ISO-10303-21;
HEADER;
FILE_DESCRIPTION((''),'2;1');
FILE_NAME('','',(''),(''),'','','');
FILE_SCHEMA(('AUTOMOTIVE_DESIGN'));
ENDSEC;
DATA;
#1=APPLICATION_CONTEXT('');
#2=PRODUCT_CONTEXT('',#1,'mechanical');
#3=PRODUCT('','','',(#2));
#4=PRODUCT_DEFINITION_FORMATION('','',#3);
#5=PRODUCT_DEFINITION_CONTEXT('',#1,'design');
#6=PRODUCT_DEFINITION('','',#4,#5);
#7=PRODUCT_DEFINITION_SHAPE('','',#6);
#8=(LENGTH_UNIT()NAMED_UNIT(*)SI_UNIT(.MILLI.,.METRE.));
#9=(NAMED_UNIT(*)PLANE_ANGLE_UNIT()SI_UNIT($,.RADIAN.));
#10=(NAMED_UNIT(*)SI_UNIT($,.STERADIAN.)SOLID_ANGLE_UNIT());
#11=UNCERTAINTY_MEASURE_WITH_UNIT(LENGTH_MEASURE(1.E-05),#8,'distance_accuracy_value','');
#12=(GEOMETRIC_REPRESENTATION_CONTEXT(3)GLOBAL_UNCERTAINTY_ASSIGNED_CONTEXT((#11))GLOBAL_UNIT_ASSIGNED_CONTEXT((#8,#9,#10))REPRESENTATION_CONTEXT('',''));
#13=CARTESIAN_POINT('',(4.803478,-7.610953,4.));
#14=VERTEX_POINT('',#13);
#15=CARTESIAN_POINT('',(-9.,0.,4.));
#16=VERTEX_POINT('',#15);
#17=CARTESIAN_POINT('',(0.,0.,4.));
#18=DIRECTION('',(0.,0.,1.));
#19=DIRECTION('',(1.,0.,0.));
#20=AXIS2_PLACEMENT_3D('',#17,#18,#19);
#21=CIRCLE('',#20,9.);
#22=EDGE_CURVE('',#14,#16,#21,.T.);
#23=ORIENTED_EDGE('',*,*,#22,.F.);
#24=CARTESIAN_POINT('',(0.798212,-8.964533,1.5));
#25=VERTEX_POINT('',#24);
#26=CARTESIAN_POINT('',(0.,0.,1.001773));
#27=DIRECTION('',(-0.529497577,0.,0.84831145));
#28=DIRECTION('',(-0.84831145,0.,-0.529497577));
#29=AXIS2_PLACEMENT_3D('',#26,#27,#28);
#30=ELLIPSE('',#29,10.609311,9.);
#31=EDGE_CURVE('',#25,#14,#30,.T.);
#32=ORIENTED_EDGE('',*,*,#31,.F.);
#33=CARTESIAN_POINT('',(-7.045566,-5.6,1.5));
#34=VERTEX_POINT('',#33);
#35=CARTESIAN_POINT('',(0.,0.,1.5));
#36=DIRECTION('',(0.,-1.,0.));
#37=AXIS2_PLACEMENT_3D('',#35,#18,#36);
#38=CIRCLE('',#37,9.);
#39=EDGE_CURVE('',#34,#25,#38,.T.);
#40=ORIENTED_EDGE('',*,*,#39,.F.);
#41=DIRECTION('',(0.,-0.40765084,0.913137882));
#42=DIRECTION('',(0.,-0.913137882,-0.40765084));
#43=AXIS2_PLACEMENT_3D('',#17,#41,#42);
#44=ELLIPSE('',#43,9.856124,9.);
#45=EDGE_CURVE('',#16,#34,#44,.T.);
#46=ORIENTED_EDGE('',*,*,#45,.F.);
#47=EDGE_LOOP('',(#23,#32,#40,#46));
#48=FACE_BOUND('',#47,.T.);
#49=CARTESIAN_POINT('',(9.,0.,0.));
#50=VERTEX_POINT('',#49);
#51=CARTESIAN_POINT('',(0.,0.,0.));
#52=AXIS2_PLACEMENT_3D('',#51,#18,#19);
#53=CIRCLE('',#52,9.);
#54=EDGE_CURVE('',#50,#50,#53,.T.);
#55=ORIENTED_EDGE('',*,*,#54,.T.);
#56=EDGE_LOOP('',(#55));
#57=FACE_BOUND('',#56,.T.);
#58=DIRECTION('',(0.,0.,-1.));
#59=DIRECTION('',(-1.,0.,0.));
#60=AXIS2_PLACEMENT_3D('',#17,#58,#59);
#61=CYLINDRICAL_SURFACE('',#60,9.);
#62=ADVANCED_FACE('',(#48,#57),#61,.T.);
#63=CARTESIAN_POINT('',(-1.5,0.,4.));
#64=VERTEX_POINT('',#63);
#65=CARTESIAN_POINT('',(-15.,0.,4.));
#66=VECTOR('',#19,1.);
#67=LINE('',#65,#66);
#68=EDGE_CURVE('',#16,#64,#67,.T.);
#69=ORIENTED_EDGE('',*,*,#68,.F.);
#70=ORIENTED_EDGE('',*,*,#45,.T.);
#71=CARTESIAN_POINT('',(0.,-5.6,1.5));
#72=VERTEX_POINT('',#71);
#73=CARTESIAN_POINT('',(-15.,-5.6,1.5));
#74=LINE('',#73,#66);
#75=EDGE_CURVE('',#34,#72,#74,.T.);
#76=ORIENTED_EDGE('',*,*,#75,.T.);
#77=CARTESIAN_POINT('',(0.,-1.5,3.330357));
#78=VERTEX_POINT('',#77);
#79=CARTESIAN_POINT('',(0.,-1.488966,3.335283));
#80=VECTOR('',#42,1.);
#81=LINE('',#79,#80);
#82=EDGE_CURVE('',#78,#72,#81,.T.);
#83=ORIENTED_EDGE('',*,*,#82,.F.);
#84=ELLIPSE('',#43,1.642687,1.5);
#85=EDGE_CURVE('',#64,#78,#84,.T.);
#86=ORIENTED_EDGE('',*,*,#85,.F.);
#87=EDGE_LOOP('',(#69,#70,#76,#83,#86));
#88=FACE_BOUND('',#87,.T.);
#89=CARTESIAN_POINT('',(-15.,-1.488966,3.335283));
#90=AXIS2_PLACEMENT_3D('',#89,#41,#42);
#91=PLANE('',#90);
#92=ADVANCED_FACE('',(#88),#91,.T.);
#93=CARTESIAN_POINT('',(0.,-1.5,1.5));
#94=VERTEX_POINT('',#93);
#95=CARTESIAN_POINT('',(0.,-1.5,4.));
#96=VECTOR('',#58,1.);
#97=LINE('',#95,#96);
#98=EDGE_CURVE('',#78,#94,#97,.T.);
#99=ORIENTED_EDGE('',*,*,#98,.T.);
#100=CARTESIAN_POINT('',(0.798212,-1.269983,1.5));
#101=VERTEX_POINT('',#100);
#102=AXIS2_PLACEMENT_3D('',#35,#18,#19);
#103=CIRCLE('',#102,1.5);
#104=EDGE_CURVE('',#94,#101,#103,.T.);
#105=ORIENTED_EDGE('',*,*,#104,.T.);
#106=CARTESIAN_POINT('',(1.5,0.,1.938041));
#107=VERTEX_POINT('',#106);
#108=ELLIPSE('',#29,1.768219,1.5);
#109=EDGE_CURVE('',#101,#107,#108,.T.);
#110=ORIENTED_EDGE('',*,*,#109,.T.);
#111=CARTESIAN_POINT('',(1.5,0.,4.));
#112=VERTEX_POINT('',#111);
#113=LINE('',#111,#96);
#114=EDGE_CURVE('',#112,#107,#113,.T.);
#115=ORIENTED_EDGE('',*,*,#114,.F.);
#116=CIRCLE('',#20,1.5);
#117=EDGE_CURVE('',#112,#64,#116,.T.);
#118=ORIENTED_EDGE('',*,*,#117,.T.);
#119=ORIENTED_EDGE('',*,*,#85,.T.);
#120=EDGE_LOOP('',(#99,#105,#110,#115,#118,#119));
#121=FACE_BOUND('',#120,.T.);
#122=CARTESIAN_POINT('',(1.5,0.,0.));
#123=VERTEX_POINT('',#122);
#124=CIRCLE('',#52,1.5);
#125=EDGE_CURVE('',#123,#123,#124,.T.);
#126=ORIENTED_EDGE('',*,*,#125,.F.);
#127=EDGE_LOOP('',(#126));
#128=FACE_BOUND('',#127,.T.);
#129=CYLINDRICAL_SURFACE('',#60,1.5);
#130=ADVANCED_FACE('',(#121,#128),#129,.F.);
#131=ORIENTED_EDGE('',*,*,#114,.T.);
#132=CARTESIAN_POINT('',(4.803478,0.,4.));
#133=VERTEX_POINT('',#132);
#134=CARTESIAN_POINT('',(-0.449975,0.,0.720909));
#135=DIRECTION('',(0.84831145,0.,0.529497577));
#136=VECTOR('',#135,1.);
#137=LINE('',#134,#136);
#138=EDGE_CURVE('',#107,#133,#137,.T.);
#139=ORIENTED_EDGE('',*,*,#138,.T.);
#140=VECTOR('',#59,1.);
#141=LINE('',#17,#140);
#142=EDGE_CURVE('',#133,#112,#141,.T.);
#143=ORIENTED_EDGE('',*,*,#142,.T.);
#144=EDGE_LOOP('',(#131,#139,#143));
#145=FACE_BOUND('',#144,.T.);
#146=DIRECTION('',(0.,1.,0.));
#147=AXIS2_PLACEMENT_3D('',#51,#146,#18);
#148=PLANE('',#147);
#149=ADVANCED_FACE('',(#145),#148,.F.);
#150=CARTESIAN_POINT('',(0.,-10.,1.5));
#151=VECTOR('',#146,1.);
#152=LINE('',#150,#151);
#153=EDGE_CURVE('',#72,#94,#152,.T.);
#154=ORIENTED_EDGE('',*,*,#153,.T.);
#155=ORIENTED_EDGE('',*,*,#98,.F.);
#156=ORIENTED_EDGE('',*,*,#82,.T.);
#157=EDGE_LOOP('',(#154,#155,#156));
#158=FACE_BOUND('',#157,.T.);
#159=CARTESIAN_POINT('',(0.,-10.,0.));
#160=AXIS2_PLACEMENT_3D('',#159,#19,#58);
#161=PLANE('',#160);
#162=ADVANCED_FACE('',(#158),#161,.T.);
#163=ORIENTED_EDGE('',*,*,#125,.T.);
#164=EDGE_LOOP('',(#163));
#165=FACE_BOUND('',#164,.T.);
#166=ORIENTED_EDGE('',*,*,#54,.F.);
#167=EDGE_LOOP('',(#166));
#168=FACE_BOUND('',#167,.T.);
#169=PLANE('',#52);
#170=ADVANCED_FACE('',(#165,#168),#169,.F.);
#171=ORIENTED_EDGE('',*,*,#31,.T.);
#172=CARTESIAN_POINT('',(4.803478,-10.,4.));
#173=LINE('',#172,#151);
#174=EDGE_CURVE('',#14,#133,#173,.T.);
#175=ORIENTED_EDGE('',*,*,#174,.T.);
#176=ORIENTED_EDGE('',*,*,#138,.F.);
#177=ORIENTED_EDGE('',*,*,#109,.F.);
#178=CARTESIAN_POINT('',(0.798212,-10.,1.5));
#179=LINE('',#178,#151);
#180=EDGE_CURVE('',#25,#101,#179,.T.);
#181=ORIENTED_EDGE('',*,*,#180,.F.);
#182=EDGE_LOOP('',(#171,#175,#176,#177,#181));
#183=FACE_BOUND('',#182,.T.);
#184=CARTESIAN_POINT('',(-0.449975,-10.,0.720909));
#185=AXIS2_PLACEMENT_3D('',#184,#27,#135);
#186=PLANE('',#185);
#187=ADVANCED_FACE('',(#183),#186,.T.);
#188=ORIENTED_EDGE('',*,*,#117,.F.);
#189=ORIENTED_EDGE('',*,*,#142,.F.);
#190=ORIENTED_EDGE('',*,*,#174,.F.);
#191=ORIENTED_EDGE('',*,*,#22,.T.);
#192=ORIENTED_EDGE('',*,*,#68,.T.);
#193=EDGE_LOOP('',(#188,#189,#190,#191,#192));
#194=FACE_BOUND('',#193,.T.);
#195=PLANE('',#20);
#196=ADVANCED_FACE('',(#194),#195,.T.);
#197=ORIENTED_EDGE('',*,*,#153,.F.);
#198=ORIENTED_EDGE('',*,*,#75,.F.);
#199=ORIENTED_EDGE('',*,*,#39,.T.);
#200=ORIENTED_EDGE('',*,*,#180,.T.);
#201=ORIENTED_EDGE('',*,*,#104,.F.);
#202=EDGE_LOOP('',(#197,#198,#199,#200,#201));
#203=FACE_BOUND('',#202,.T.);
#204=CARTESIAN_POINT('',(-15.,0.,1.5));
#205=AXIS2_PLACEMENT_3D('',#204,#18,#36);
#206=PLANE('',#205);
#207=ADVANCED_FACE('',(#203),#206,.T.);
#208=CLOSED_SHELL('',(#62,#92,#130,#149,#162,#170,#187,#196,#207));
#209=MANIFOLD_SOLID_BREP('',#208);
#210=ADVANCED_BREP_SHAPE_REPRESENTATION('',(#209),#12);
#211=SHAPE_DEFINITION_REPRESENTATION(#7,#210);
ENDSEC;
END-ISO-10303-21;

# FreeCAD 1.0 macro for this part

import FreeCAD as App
import Part
import Sketcher
from FreeCAD import Vector
Q = App.Units.Quantity

doc = App.newDocument("Part")
body = doc.addObject("PartDesign::Body", "Body")

sketch1 = doc.addObject("Sketcher::SketchObject", "Sketch")
body.addObject(sketch1)
sketch1.AttachmentSupport = (doc.XY_Plane, [""])
sketch1.MapMode = "FlatFace"
sketch1.addGeometry([
    Part.Circle(Vector(0, 0, 0), Vector(0, 0, 1), 9),
    Part.Circle(Vector(0, 0, 0), Vector(0, 0, 1), 1.5),
], False)
sketch1.addConstraint([
    Sketcher.Constraint("Coincident", 0, 3, -1, 1),
    Sketcher.Constraint("Coincident", 1, 3, -1, 1),
    Sketcher.Constraint("Diameter", 0, Q("18 mm")),
    Sketcher.Constraint("Diameter", 1, Q("3 mm")),
])
pad1 = doc.addObject("PartDesign::Pad", "Pad")
body.addObject(pad1)
pad1.Profile = sketch1
pad1.Length = 4

sketch2 = doc.addObject("Sketcher::SketchObject", "Sketch001")
body.addObject(sketch2)
sketch2.AttachmentSupport = (doc.YZ_Plane, [""])
sketch2.MapMode = "FlatFace"
sketch2.addGeometry([
    Part.LineSegment(Vector(-5.6, 1.5, 0), Vector(0, 4, 0)),
    Part.LineSegment(Vector(0, 4, 0), Vector(-9, 4, 0)),
    Part.LineSegment(Vector(-9, 4, 0), Vector(-9, 1.5, 0)),
    Part.LineSegment(Vector(-9, 1.5, 0), Vector(-5.6, 1.5, 0)),
], False)
sketch2.addConstraint([
    Sketcher.Constraint("Coincident", 0, 2, 1, 1),
    Sketcher.Constraint("Coincident", 1, 2, 2, 1),
    Sketcher.Constraint("Coincident", 2, 2, 3, 1),
    Sketcher.Constraint("Coincident", 3, 2, 0, 1),
    Sketcher.Constraint("Horizontal", 1),
    Sketcher.Constraint("Vertical", 2),
    Sketcher.Constraint("Horizontal", 3),
    Sketcher.Constraint("PointOnObject", 0, 2, -2),
    Sketcher.Constraint("DistanceX", 1, 2, 1, 1, Q("9 mm")),
    Sketcher.Constraint("DistanceX", 3, 1, 3, 2, Q("3.4 mm")),
    Sketcher.Constraint("DistanceY", 2, 2, 2, 1, Q("2.5 mm")),
    Sketcher.Constraint("DistanceY", -1, 1, 0, 2, Q("4 mm")),
])
pocket1 = doc.addObject("PartDesign::Pocket", "Pocket")
body.addObject(pocket1)
pocket1.Profile = sketch2
pocket1.Length = 15

sketch3 = doc.addObject("Sketcher::SketchObject", "Sketch002")
body.addObject(sketch3)
sketch3.AttachmentSupport = (doc.XZ_Plane, [""])
sketch3.MapMode = "FlatFace"
sketch3.addGeometry([
    Part.LineSegment(Vector(0, 1.5, 0), Vector(0, 4, 0)),
    Part.LineSegment(Vector(0, 4, 0), Vector(4.8, 4, 0)),
    Part.LineSegment(Vector(4.8, 4, 0), Vector(0.8, 1.5, 0)),
    Part.LineSegment(Vector(0.8, 1.5, 0), Vector(0, 1.5, 0)),
], False)
sketch3.addConstraint([
    Sketcher.Constraint("Coincident", 0, 2, 1, 1),
    Sketcher.Constraint("Coincident", 1, 2, 2, 1),
    Sketcher.Constraint("Coincident", 2, 2, 3, 1),
    Sketcher.Constraint("Coincident", 3, 2, 0, 1),
    Sketcher.Constraint("Vertical", 0),
    Sketcher.Constraint("Horizontal", 1),
    Sketcher.Constraint("Horizontal", 3),
    Sketcher.Constraint("PointOnObject", 0, 2, -2),
    Sketcher.Constraint("DistanceY", 0, 1, 0, 2, Q("2.5 mm")),
    Sketcher.Constraint("DistanceY", -1, 1, 0, 2, Q("4 mm")),
    Sketcher.Constraint("DistanceX", 1, 1, 1, 2, Q("4.803478 mm")),
    Sketcher.Constraint("DistanceX", 3, 2, 3, 1, Q("0.798212 mm")),
])
pocket2 = doc.addObject("PartDesign::Pocket", "Pocket001")
body.addObject(pocket2)
pocket2.Profile = sketch3
pocket2.Length = 10
pocket2.Reversed = True

doc.recompute()
